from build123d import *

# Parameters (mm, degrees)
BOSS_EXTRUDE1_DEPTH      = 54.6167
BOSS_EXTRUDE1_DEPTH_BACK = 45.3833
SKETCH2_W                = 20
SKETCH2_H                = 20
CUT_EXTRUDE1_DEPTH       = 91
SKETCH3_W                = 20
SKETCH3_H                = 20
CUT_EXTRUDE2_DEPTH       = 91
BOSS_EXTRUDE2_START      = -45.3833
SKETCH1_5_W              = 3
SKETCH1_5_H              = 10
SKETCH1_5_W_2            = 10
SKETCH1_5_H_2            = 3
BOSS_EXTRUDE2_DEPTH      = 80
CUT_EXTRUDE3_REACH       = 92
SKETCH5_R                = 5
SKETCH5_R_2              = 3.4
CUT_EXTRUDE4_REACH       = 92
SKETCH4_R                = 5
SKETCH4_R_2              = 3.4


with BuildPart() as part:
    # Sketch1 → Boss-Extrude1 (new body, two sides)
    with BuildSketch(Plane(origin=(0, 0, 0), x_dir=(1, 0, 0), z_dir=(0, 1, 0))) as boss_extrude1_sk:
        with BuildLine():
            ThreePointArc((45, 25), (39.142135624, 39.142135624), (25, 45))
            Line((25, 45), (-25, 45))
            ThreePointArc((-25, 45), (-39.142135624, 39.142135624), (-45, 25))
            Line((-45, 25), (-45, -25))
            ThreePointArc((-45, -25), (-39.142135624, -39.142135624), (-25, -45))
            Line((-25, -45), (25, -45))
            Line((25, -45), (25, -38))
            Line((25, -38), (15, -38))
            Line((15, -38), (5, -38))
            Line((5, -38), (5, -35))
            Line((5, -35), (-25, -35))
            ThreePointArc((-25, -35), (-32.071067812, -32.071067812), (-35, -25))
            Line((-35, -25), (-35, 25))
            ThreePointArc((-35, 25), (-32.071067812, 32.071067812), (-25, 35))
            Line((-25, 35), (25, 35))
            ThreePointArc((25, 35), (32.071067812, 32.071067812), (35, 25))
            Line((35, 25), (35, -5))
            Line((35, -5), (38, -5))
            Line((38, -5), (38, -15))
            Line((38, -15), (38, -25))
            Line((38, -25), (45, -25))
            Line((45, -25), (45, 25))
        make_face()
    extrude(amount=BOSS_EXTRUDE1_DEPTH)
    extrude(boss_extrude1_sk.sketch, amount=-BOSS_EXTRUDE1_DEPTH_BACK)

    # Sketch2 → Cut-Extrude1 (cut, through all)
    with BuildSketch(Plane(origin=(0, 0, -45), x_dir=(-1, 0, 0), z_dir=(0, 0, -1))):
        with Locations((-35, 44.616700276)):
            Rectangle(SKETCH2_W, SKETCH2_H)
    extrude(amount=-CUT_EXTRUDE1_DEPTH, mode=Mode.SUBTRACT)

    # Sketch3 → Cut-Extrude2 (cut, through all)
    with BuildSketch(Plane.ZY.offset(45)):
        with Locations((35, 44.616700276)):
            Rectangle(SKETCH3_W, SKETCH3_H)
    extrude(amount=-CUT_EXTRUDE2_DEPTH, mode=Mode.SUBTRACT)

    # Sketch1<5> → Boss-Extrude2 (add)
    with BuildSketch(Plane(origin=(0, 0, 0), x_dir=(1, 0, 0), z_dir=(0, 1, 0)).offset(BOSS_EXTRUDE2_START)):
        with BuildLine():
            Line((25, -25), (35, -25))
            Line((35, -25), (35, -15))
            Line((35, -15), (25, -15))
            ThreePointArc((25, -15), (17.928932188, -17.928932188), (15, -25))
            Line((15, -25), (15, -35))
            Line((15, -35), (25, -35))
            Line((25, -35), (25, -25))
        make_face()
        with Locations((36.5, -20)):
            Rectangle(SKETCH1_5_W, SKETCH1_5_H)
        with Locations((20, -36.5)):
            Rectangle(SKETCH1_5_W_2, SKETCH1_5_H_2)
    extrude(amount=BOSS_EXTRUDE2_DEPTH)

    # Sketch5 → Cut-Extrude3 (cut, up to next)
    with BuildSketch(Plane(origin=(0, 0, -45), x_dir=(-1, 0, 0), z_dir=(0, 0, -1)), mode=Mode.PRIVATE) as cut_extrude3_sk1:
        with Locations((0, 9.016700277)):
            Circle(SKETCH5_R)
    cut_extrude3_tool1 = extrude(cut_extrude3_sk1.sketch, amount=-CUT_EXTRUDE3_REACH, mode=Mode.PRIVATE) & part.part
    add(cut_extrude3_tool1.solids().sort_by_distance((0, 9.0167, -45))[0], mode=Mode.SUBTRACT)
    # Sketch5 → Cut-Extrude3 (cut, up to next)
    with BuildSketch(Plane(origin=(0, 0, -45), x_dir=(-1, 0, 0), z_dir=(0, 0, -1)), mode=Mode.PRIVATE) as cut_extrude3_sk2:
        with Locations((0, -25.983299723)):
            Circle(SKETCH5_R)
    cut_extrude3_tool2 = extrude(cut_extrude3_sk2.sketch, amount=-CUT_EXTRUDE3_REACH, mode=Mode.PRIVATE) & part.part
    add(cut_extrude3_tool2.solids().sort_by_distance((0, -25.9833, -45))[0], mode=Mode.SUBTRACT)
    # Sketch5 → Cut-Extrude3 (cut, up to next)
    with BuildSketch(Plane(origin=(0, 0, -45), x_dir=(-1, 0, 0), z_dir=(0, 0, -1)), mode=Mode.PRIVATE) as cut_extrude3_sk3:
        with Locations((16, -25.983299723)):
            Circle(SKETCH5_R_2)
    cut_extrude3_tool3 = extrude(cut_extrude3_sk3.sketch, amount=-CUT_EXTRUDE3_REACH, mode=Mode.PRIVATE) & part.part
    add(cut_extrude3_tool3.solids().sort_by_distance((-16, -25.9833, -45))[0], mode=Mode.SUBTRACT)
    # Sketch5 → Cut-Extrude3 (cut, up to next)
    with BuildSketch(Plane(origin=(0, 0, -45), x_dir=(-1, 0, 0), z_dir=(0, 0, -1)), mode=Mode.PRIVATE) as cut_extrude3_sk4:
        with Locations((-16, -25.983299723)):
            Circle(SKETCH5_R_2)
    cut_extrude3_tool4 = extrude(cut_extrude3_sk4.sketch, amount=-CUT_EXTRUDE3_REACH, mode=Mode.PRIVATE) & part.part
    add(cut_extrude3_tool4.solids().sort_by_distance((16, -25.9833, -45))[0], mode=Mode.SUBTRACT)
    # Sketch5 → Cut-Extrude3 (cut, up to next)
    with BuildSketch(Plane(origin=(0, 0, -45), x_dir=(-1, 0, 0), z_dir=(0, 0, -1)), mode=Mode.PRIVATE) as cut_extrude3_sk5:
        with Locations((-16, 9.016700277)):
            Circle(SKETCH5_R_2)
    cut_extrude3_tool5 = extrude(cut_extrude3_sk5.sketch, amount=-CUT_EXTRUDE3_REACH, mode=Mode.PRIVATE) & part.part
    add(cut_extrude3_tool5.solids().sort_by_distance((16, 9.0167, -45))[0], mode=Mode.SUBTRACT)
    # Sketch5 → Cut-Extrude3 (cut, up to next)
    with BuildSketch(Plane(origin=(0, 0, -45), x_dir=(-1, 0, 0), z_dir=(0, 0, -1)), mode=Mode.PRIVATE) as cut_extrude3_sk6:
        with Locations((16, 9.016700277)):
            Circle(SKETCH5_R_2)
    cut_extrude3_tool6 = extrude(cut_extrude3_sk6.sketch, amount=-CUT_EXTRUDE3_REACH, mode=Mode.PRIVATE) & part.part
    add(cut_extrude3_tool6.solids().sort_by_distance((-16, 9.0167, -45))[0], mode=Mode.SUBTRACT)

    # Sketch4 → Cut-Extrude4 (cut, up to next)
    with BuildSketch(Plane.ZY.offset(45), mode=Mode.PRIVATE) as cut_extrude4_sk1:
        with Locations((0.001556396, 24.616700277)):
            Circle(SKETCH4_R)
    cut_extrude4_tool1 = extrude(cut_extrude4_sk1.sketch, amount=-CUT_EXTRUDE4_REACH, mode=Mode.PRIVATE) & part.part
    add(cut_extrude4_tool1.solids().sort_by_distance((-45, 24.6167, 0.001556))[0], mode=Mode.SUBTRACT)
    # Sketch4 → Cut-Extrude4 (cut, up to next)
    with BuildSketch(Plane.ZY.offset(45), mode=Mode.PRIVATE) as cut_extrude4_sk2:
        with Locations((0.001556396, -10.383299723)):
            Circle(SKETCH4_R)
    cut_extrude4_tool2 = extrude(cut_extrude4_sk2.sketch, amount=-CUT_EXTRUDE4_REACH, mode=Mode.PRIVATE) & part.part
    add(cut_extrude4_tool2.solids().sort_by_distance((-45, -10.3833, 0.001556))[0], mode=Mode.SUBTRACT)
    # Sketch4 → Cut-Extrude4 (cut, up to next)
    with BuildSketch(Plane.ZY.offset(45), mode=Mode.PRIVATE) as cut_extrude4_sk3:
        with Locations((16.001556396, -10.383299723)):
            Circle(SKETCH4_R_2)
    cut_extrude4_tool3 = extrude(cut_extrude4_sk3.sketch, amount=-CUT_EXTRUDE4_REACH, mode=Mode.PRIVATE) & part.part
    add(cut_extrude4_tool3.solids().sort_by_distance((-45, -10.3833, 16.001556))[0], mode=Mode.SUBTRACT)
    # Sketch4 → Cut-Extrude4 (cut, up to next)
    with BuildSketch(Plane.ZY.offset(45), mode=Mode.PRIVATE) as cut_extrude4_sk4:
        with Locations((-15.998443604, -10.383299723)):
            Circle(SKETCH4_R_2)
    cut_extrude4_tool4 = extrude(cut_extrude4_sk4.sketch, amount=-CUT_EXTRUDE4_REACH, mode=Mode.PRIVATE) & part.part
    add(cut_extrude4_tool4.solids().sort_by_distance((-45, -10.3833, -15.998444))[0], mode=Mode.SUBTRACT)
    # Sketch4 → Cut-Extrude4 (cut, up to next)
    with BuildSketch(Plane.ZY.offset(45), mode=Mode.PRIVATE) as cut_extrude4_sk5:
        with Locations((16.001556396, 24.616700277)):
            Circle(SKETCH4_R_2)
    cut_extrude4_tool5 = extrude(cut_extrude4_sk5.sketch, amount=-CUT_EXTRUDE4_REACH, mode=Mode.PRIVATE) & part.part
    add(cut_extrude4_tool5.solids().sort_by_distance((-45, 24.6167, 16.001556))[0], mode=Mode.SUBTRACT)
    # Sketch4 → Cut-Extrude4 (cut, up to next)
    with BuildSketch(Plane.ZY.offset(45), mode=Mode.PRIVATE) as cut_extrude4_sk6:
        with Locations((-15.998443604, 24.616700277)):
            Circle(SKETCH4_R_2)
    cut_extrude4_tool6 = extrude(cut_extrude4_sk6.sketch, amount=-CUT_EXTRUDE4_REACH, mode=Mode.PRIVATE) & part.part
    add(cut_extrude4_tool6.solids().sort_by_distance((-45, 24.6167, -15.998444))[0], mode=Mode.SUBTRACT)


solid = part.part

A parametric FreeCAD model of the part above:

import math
import FreeCAD as App
import Part
import Sketcher

V = App.Vector
Q = App.Units.Quantity

doc = App.newDocument("Part")
body = doc.addObject("PartDesign::Body", "Body")

# Sketch on XZ plane
sketch1 = body.newObject("Sketcher::SketchObject", "Sketch")
sketch1.AttachmentSupport = (doc.getObject("XZ_Plane"), [""])
sketch1.MapMode = "FlatFace"
sketch1.addGeometry(Part.ArcOfCircle(Part.Circle(V(25, -25, 0), V(0, 0, 1), 20), math.radians(-90), math.radians(0)), False)
sketch1.addGeometry(Part.LineSegment(V(25, -45, 0), V(-25, -45, 0)), False)
sketch1.addGeometry(Part.ArcOfCircle(Part.Circle(V(-25, -25, 0), V(0, 0, 1), 20), math.radians(180), math.radians(270)), False)
sketch1.addGeometry(Part.LineSegment(V(-45, -25, 0), V(-45, 25, 0)), False)
sketch1.addGeometry(Part.ArcOfCircle(Part.Circle(V(-25, 25, 0), V(0, 0, 1), 20), math.radians(90), math.radians(180)), False)
sketch1.addGeometry(Part.LineSegment(V(-25, 45, 0), V(25, 45, 0)), False)
sketch1.addGeometry(Part.LineSegment(V(25, 45, 0), V(25, 38, 0)), False)
sketch1.addGeometry(Part.LineSegment(V(25, 38, 0), V(5, 38, 0)), False)
sketch1.addGeometry(Part.LineSegment(V(5, 38, 0), V(5, 35, 0)), False)
sketch1.addGeometry(Part.LineSegment(V(5, 35, 0), V(-25, 35, 0)), False)
sketch1.addGeometry(Part.ArcOfCircle(Part.Circle(V(-25, 25, 0), V(0, 0, 1), 10), math.radians(90), math.radians(180)), False)
sketch1.addGeometry(Part.LineSegment(V(-35, 25, 0), V(-35, -25, 0)), False)
sketch1.addGeometry(Part.ArcOfCircle(Part.Circle(V(-25, -25, 0), V(0, 0, 1), 10), math.radians(180), math.radians(270)), False)
sketch1.addGeometry(Part.LineSegment(V(-25, -35, 0), V(25, -35, 0)), False)
sketch1.addGeometry(Part.ArcOfCircle(Part.Circle(V(25, -25, 0), V(0, 0, 1), 10), math.radians(-90), math.radians(0)), False)
sketch1.addGeometry(Part.LineSegment(V(35, -25, 0), V(35, 5, 0)), False)
sketch1.addGeometry(Part.LineSegment(V(35, 5, 0), V(38, 5, 0)), False)
sketch1.addGeometry(Part.LineSegment(V(38, 5, 0), V(38, 25, 0)), False)
sketch1.addGeometry(Part.LineSegment(V(38, 25, 0), V(45, 25, 0)), False)
sketch1.addGeometry(Part.LineSegment(V(45, 25, 0), V(45, -25, 0)), False)
sketch1.addConstraint(Sketcher.Constraint("Tangent", 0, 1, 1, 1))
sketch1.addConstraint(Sketcher.Constraint("Tangent", 1, 2, 2, 2))
sketch1.addConstraint(Sketcher.Constraint("Tangent", 2, 1, 3, 1))
sketch1.addConstraint(Sketcher.Constraint("Tangent", 3, 2, 4, 2))
sketch1.addConstraint(Sketcher.Constraint("Tangent", 4, 1, 5, 1))
sketch1.addConstraint(Sketcher.Constraint("Coincident", 5, 2, 6, 1))
sketch1.addConstraint(Sketcher.Constraint("Coincident", 6, 2, 7, 1))
sketch1.addConstraint(Sketcher.Constraint("Coincident", 7, 2, 8, 1))
sketch1.addConstraint(Sketcher.Constraint("Coincident", 8, 2, 9, 1))
sketch1.addConstraint(Sketcher.Constraint("Tangent", 9, 2, 10, 1))
sketch1.addConstraint(Sketcher.Constraint("Tangent", 10, 2, 11, 1))
sketch1.addConstraint(Sketcher.Constraint("Tangent", 11, 2, 12, 1))
sketch1.addConstraint(Sketcher.Constraint("Tangent", 12, 2, 13, 1))
sketch1.addConstraint(Sketcher.Constraint("Tangent", 13, 2, 14, 1))
sketch1.addConstraint(Sketcher.Constraint("Tangent", 14, 2, 15, 1))
sketch1.addConstraint(Sketcher.Constraint("Coincident", 15, 2, 16, 1))
sketch1.addConstraint(Sketcher.Constraint("Coincident", 16, 2, 17, 1))
sketch1.addConstraint(Sketcher.Constraint("Coincident", 17, 2, 18, 1))
sketch1.addConstraint(Sketcher.Constraint("Coincident", 18, 2, 19, 1))
sketch1.addConstraint(Sketcher.Constraint("Tangent", 19, 2, 0, 2))
sketch1.addConstraint(Sketcher.Constraint("Horizontal", 1))
sketch1.addConstraint(Sketcher.Constraint("Vertical", 3))
sketch1.addConstraint(Sketcher.Constraint("Horizontal", 5))
sketch1.addConstraint(Sketcher.Constraint("Vertical", 6))
sketch1.addConstraint(Sketcher.Constraint("Horizontal", 7))
sketch1.addConstraint(Sketcher.Constraint("Vertical", 8))
sketch1.addConstraint(Sketcher.Constraint("Horizontal", 9))
sketch1.addConstraint(Sketcher.Constraint("Vertical", 11))
sketch1.addConstraint(Sketcher.Constraint("Horizontal", 13))
sketch1.addConstraint(Sketcher.Constraint("Vertical", 15))
sketch1.addConstraint(Sketcher.Constraint("Horizontal", 16))
sketch1.addConstraint(Sketcher.Constraint("Vertical", 17))
sketch1.addConstraint(Sketcher.Constraint("Horizontal", 18))
sketch1.addConstraint(Sketcher.Constraint("Vertical", 19))
sketch1.addConstraint(Sketcher.Constraint("Coincident", 10, 3, 4, 3))
sketch1.addConstraint(Sketcher.Constraint("Coincident", 12, 3, 2, 3))
sketch1.addConstraint(Sketcher.Constraint("Coincident", 14, 3, 0, 3))
sketch1.addConstraint(Sketcher.Constraint("Equal", 0, 2))
sketch1.addConstraint(Sketcher.Constraint("Equal", 2, 4))
sketch1.addConstraint(Sketcher.Constraint("Symmetric", 0, 3, 4, 3, -1, 1))
sketch1.addConstraint(Sketcher.Constraint("Horizontal", 10, 2, 17, 2))
sketch1.addConstraint(Sketcher.Constraint("Vertical", 0, 1, 5, 2))
sketch1.addConstraint(Sketcher.Constraint("Equal", 13, 3))
sketch1.addConstraint(Sketcher.Constraint("Equal", 18, 6))
sketch1.addConstraint(Sketcher.Constraint("Equal", 9, 15))
sketch1.addConstraint(Sketcher.Constraint("Radius", 0, Q("20 mm")))
sketch1.addConstraint(Sketcher.Constraint("Radius", 10, Q("10 mm")))
sketch1.addConstraint(Sketcher.Constraint("DistanceX", 1, 2, 1, 1, Q("50 mm")))
sketch1.addConstraint(Sketcher.Constraint("DistanceX", 7, 2, 7, 1, Q("20 mm")))
sketch1.addConstraint(Sketcher.Constraint("DistanceX", 16, 1, 16, 2, Q("3 mm")))
pad1 = body.newObject("PartDesign::Pad", "Pad")
pad1.Profile = sketch1
pad1.Type = "TwoLengths"
pad1.Length = 54.6167
pad1.Length2 = 45.3833
pad1.Reversed = True

# Sketch on XY plane
sketch2 = body.newObject("Sketcher::SketchObject", "Sketch001")
sketch2.AttachmentSupport = (doc.getObject("XY_Plane"), [""])
sketch2.MapMode = "FlatFace"
sketch2.AttachmentOffset = App.Placement(V(0, 0, -45), App.Rotation())
sketch2.addGeometry(Part.LineSegment(V(45, 55, 0), V(45, 35, 0)), False)
sketch2.addGeometry(Part.LineSegment(V(45, 35, 0), V(25, 35, 0)), False)
sketch2.addGeometry(Part.LineSegment(V(25, 35, 0), V(25, 55, 0)), False)
sketch2.addGeometry(Part.LineSegment(V(25, 55, 0), V(45, 55, 0)), False)
sketch2.addConstraint(Sketcher.Constraint("Coincident", 0, 2, 1, 1))
sketch2.addConstraint(Sketcher.Constraint("Coincident", 1, 2, 2, 1))
sketch2.addConstraint(Sketcher.Constraint("Coincident", 2, 2, 3, 1))
sketch2.addConstraint(Sketcher.Constraint("Coincident", 3, 2, 0, 1))
sketch2.addConstraint(Sketcher.Constraint("Vertical", 0))
sketch2.addConstraint(Sketcher.Constraint("Horizontal", 1))
sketch2.addConstraint(Sketcher.Constraint("Vertical", 2))
sketch2.addConstraint(Sketcher.Constraint("Horizontal", 3))
sketch2.addConstraint(Sketcher.Constraint("Equal", 3, 0))
sketch2.addConstraint(Sketcher.Constraint("DistanceX", 1, 2, 1, 1, Q("20 mm")))
sketch2.addConstraint(Sketcher.Constraint("DistanceX", -1, 1, 0, 2, Q("45 mm")))
sketch2.addConstraint(Sketcher.Constraint("DistanceY", -1, 1, 0, 2, Q("34.6167 mm")))
pocket1 = body.newObject("PartDesign::Pocket", "Pocket")
pocket1.Profile = sketch2
pocket1.Type = "ThroughAll"
pocket1.Reversed = True

# Sketch on YZ plane
sketch3 = body.newObject("Sketcher::SketchObject", "Sketch002")
sketch3.AttachmentSupport = (doc.getObject("YZ_Plane"), [""])
sketch3.MapMode = "FlatFace"
sketch3.AttachmentOffset = App.Placement(V(0, 0, -45), App.Rotation())
sketch3.addGeometry(Part.LineSegment(V(55, 25, 0), V(35, 25, 0)), False)
sketch3.addGeometry(Part.LineSegment(V(35, 25, 0), V(35, 45, 0)), False)
sketch3.addGeometry(Part.LineSegment(V(35, 45, 0), V(55, 45, 0)), False)
sketch3.addGeometry(Part.LineSegment(V(55, 45, 0), V(55, 25, 0)), False)
sketch3.addConstraint(Sketcher.Constraint("Coincident", 0, 2, 1, 1))
sketch3.addConstraint(Sketcher.Constraint("Coincident", 1, 2, 2, 1))
sketch3.addConstraint(Sketcher.Constraint("Coincident", 2, 2, 3, 1))
sketch3.addConstraint(Sketcher.Constraint("Coincident", 3, 2, 0, 1))
sketch3.addConstraint(Sketcher.Constraint("Horizontal", 0))
sketch3.addConstraint(Sketcher.Constraint("Vertical", 1))
sketch3.addConstraint(Sketcher.Constraint("Horizontal", 2))
sketch3.addConstraint(Sketcher.Constraint("Vertical", 3))
sketch3.addConstraint(Sketcher.Constraint("Equal", 2, 1))
sketch3.addConstraint(Sketcher.Constraint("DistanceX", 0, 2, 0, 1, Q("20 mm")))
sketch3.addConstraint(Sketcher.Constraint("DistanceY", -1, 1, 0, 2, Q("25 mm")))
sketch3.addConstraint(Sketcher.Constraint("DistanceX", -1, 1, 0, 2, Q("34.6167 mm")))
pocket2 = body.newObject("PartDesign::Pocket", "Pocket001")
pocket2.Profile = sketch3
pocket2.Type = "ThroughAll"
pocket2.Reversed = True

# Sketch on XZ plane
sketch4 = body.newObject("Sketcher::SketchObject", "Sketch003")
sketch4.AttachmentSupport = (doc.getObject("XZ_Plane"), [""])
sketch4.MapMode = "FlatFace"
sketch4.AttachmentOffset = App.Placement(V(0, 0, 45.3833), App.Rotation())
sketch4.addGeometry(Part.LineSegment(V(25, 25, 0), V(38, 25, 0)), False)
sketch4.addGeometry(Part.LineSegment(V(38, 25, 0), V(38, 15, 0)), False)
sketch4.addGeometry(Part.LineSegment(V(38, 15, 0), V(25, 15, 0)), False)
sketch4.addGeometry(Part.ArcOfCircle(Part.Circle(V(25, 25, 0), V(0, 0, 1), 10), math.radians(180), math.radians(270)), False)
sketch4.addGeometry(Part.LineSegment(V(15, 25, 0), V(15, 38, 0)), False)
sketch4.addGeometry(Part.LineSegment(V(15, 38, 0), V(25, 38, 0)), False)
sketch4.addGeometry(Part.LineSegment(V(25, 38, 0), V(25, 25, 0)), False)
sketch4.addConstraint(Sketcher.Constraint("Coincident", 0, 2, 1, 1))
sketch4.addConstraint(Sketcher.Constraint("Coincident", 1, 2, 2, 1))
sketch4.addConstraint(Sketcher.Constraint("Tangent", 2, 2, 3, 2))
sketch4.addConstraint(Sketcher.Constraint("Tangent", 3, 1, 4, 1))
sketch4.addConstraint(Sketcher.Constraint("Coincident", 4, 2, 5, 1))
sketch4.addConstraint(Sketcher.Constraint("Coincident", 5, 2, 6, 1))
sketch4.addConstraint(Sketcher.Constraint("Coincident", 6, 2, 0, 1))
sketch4.addConstraint(Sketcher.Constraint("Horizontal", 0))
sketch4.addConstraint(Sketcher.Constraint("Vertical", 1))
sketch4.addConstraint(Sketcher.Constraint("Horizontal", 2))
sketch4.addConstraint(Sketcher.Constraint("Vertical", 4))
sketch4.addConstraint(Sketcher.Constraint("Horizontal", 5))
sketch4.addConstraint(Sketcher.Constraint("Vertical", 6))
sketch4.addConstraint(Sketcher.Constraint("Coincident", 6, 2, 3, 3))
sketch4.addConstraint(Sketcher.Constraint("Equal", 2, 4))
sketch4.addConstraint(Sketcher.Constraint("Radius", 3, Q("10 mm")))
sketch4.addConstraint(Sketcher.Constraint("DistanceX", 0, 1, 0, 2, Q("13 mm")))
sketch4.addConstraint(Sketcher.Constraint("DistanceX", -1, 1, 3, 3, Q("25 mm")))
sketch4.addConstraint(Sketcher.Constraint("DistanceY", -1, 1, 3, 3, Q("25 mm")))
pad2 = body.newObject("PartDesign::Pad", "Pad001")
pad2.Profile = sketch4
pad2.Length = 80
pad2.Reversed = True

# Sketch on XY plane
sketch5 = body.newObject("Sketcher::SketchObject", "Sketch004")
sketch5.AttachmentSupport = (doc.getObject("XY_Plane"), [""])
sketch5.MapMode = "FlatFace"
sketch5.AttachmentOffset = App.Placement(V(0, 0, -45), App.Rotation())
sketch5.addGeometry(Part.Circle(V(0, 9, 0), V(0, 0, 1), 5), False)
sketch5.addConstraint(Sketcher.Constraint("PointOnObject", 0, 3, -2))
sketch5.addConstraint(Sketcher.Constraint("Diameter", 0, Q("10 mm")))
sketch5.addConstraint(Sketcher.Constraint("DistanceY", -1, 1, 0, 3, Q("9.0167 mm")))
pocket3 = body.newObject("PartDesign::Pocket", "Pocket002")
pocket3.Profile = sketch5
pocket3.Type = "UpToFirst"
pocket3.Reversed = True

# Sketch on XY plane
sketch6 = body.newObject("Sketcher::SketchObject", "Sketch005")
sketch6.AttachmentSupport = (doc.getObject("XY_Plane"), [""])
sketch6.MapMode = "FlatFace"
sketch6.AttachmentOffset = App.Placement(V(0, 0, -45), App.Rotation())
sketch6.addGeometry(Part.Circle(V(0, -26, 0), V(0, 0, 1), 5), False)
sketch6.addConstraint(Sketcher.Constraint("PointOnObject", 0, 3, -2))
sketch6.addConstraint(Sketcher.Constraint("Diameter", 0, Q("10 mm")))
sketch6.addConstraint(Sketcher.Constraint("DistanceY", 0, 3, -1, 1, Q("25.9833 mm")))
pocket4 = body.newObject("PartDesign::Pocket", "Pocket003")
pocket4.Profile = sketch6
pocket4.Type = "UpToFirst"
pocket4.Reversed = True

# Sketch on XY plane
sketch7 = body.newObject("Sketcher::SketchObject", "Sketch006")
sketch7.AttachmentSupport = (doc.getObject("XY_Plane"), [""])
sketch7.MapMode = "FlatFace"
sketch7.AttachmentOffset = App.Placement(V(0, 0, -45), App.Rotation())
sketch7.addGeometry(Part.Circle(V(-16, -26, 0), V(0, 0, 1), 3.4), False)
sketch7.addConstraint(Sketcher.Constraint("Diameter", 0, Q("6.8 mm")))
sketch7.addConstraint(Sketcher.Constraint("DistanceX", 0, 3, -1, 1, Q("16 mm")))
sketch7.addConstraint(Sketcher.Constraint("DistanceY", 0, 3, -1, 1, Q("25.9833 mm")))
pocket5 = body.newObject("PartDesign::Pocket", "Pocket004")
pocket5.Profile = sketch7
pocket5.Type = "UpToFirst"
pocket5.Reversed = True

# Sketch on XY plane
sketch8 = body.newObject("Sketcher::SketchObject", "Sketch007")
sketch8.AttachmentSupport = (doc.getObject("XY_Plane"), [""])
sketch8.MapMode = "FlatFace"
sketch8.AttachmentOffset = App.Placement(V(0, 0, -45), App.Rotation())
sketch8.addGeometry(Part.Circle(V(16, -26, 0), V(0, 0, 1), 3.4), False)
sketch8.addConstraint(Sketcher.Constraint("Diameter", 0, Q("6.8 mm")))
sketch8.addConstraint(Sketcher.Constraint("DistanceX", -1, 1, 0, 3, Q("16 mm")))
sketch8.addConstraint(Sketcher.Constraint("DistanceY", 0, 3, -1, 1, Q("25.9833 mm")))
pocket6 = body.newObject("PartDesign::Pocket", "Pocket005")
pocket6.Profile = sketch8
pocket6.Type = "UpToFirst"
pocket6.Reversed = True

# Sketch on XY plane
sketch9 = body.newObject("Sketcher::SketchObject", "Sketch008")
sketch9.AttachmentSupport = (doc.getObject("XY_Plane"), [""])
sketch9.MapMode = "FlatFace"
sketch9.AttachmentOffset = App.Placement(V(0, 0, -45), App.Rotation())
sketch9.addGeometry(Part.Circle(V(16, 9, 0), V(0, 0, 1), 3.4), False)
sketch9.addConstraint(Sketcher.Constraint("Diameter", 0, Q("6.8 mm")))
sketch9.addConstraint(Sketcher.Constraint("DistanceX", -1, 1, 0, 3, Q("16 mm")))
sketch9.addConstraint(Sketcher.Constraint("DistanceY", -1, 1, 0, 3, Q("9.0167 mm")))
pocket7 = body.newObject("PartDesign::Pocket", "Pocket006")
pocket7.Profile = sketch9
pocket7.Type = "UpToFirst"
pocket7.Reversed = True

# Sketch on XY plane
sketch10 = body.newObject("Sketcher::SketchObject", "Sketch009")
sketch10.AttachmentSupport = (doc.getObject("XY_Plane"), [""])
sketch10.MapMode = "FlatFace"
sketch10.AttachmentOffset = App.Placement(V(0, 0, -45), App.Rotation())
sketch10.addGeometry(Part.Circle(V(-16, 9, 0), V(0, 0, 1), 3.4), False)
sketch10.addConstraint(Sketcher.Constraint("Diameter", 0, Q("6.8 mm")))
sketch10.addConstraint(Sketcher.Constraint("DistanceX", 0, 3, -1, 1, Q("16 mm")))
sketch10.addConstraint(Sketcher.Constraint("DistanceY", -1, 1, 0, 3, Q("9.0167 mm")))
pocket8 = body.newObject("PartDesign::Pocket", "Pocket007")
pocket8.Profile = sketch10
pocket8.Type = "UpToFirst"
pocket8.Reversed = True

# Sketch on YZ plane
sketch11 = body.newObject("Sketcher::SketchObject", "Sketch010")
sketch11.AttachmentSupport = (doc.getObject("YZ_Plane"), [""])
sketch11.MapMode = "FlatFace"
sketch11.AttachmentOffset = App.Placement(V(0, 0, -45), App.Rotation())
sketch11.addGeometry(Part.Circle(V(25, 0, 0), V(0, 0, 1), 5), False)
sketch11.addConstraint(Sketcher.Constraint("Diameter", 0, Q("10 mm")))
sketch11.addConstraint(Sketcher.Constraint("DistanceX", -1, 1, 0, 3, Q("24.6167 mm")))
sketch11.addConstraint(Sketcher.Constraint("DistanceY", -1, 1, 0, 3, Q("0.001556 mm")))
pocket9 = body.newObject("PartDesign::Pocket", "Pocket008")
pocket9.Profile = sketch11
pocket9.Type = "UpToFirst"
pocket9.Reversed = True

# Sketch on YZ plane
sketch12 = body.newObject("Sketcher::SketchObject", "Sketch011")
sketch12.AttachmentSupport = (doc.getObject("YZ_Plane"), [""])
sketch12.MapMode = "FlatFace"
sketch12.AttachmentOffset = App.Placement(V(0, 0, -45), App.Rotation())
sketch12.addGeometry(Part.Circle(V(-10, 0, 0), V(0, 0, 1), 5), False)
sketch12.addConstraint(Sketcher.Constraint("Diameter", 0, Q("10 mm")))
sketch12.addConstraint(Sketcher.Constraint("DistanceX", 0, 3, -1, 1, Q("10.3833 mm")))
sketch12.addConstraint(Sketcher.Constraint("DistanceY", -1, 1, 0, 3, Q("0.001556 mm")))
pocket10 = body.newObject("PartDesign::Pocket", "Pocket009")
pocket10.Profile = sketch12
pocket10.Type = "UpToFirst"
pocket10.Reversed = True

# Sketch on YZ plane
sketch13 = body.newObject("Sketcher::SketchObject", "Sketch012")
sketch13.AttachmentSupport = (doc.getObject("YZ_Plane"), [""])
sketch13.MapMode = "FlatFace"
sketch13.AttachmentOffset = App.Placement(V(0, 0, -45), App.Rotation())
sketch13.addGeometry(Part.Circle(V(-10.4, 16, 0), V(0, 0, 1), 3.4), False)
sketch13.addConstraint(Sketcher.Constraint("Diameter", 0, Q("6.8 mm")))
sketch13.addConstraint(Sketcher.Constraint("DistanceX", 0, 3, -1, 1, Q("10.3833 mm")))
sketch13.addConstraint(Sketcher.Constraint("DistanceY", -1, 1, 0, 3, Q("16.001556 mm")))
pocket11 = body.newObject("PartDesign::Pocket", "Pocket010")
pocket11.Profile = sketch13
pocket11.Type = "UpToFirst"
pocket11.Reversed = True

# Sketch on YZ plane
sketch14 = body.newObject("Sketcher::SketchObject", "Sketch013")
sketch14.AttachmentSupport = (doc.getObject("YZ_Plane"), [""])
sketch14.MapMode = "FlatFace"
sketch14.AttachmentOffset = App.Placement(V(0, 0, -45), App.Rotation())
sketch14.addGeometry(Part.Circle(V(-10.4, -16, 0), V(0, 0, 1), 3.4), False)
sketch14.addConstraint(Sketcher.Constraint("Diameter", 0, Q("6.8 mm")))
sketch14.addConstraint(Sketcher.Constraint("DistanceX", 0, 3, -1, 1, Q("10.3833 mm")))
sketch14.addConstraint(Sketcher.Constraint("DistanceY", 0, 3, -1, 1, Q("15.998444 mm")))
pocket12 = body.newObject("PartDesign::Pocket", "Pocket011")
pocket12.Profile = sketch14
pocket12.Type = "UpToFirst"
pocket12.Reversed = True

# Sketch on YZ plane
sketch15 = body.newObject("Sketcher::SketchObject", "Sketch014")
sketch15.AttachmentSupport = (doc.getObject("YZ_Plane"), [""])
sketch15.MapMode = "FlatFace"
sketch15.AttachmentOffset = App.Placement(V(0, 0, -45), App.Rotation())
sketch15.addGeometry(Part.Circle(V(24.6, 16, 0), V(0, 0, 1), 3.4), False)
sketch15.addConstraint(Sketcher.Constraint("Diameter", 0, Q("6.8 mm")))
sketch15.addConstraint(Sketcher.Constraint("DistanceX", -1, 1, 0, 3, Q("24.6167 mm")))
sketch15.addConstraint(Sketcher.Constraint("DistanceY", -1, 1, 0, 3, Q("16.001556 mm")))
pocket13 = body.newObject("PartDesign::Pocket", "Pocket012")
pocket13.Profile = sketch15
pocket13.Type = "UpToFirst"
pocket13.Reversed = True

# Sketch on YZ plane
sketch16 = body.newObject("Sketcher::SketchObject", "Sketch015")
sketch16.AttachmentSupport = (doc.getObject("YZ_Plane"), [""])
sketch16.MapMode = "FlatFace"
sketch16.AttachmentOffset = App.Placement(V(0, 0, -45), App.Rotation())
sketch16.addGeometry(Part.Circle(V(24.6, -16, 0), V(0, 0, 1), 3.4), False)
sketch16.addConstraint(Sketcher.Constraint("Diameter", 0, Q("6.8 mm")))
sketch16.addConstraint(Sketcher.Constraint("DistanceX", -1, 1, 0, 3, Q("24.6167 mm")))
sketch16.addConstraint(Sketcher.Constraint("DistanceY", 0, 3, -1, 1, Q("15.998444 mm")))
pocket14 = body.newObject("PartDesign::Pocket", "Pocket013")
pocket14.Profile = sketch16
pocket14.Type = "UpToFirst"
pocket14.Reversed = True

doc.recompute()
